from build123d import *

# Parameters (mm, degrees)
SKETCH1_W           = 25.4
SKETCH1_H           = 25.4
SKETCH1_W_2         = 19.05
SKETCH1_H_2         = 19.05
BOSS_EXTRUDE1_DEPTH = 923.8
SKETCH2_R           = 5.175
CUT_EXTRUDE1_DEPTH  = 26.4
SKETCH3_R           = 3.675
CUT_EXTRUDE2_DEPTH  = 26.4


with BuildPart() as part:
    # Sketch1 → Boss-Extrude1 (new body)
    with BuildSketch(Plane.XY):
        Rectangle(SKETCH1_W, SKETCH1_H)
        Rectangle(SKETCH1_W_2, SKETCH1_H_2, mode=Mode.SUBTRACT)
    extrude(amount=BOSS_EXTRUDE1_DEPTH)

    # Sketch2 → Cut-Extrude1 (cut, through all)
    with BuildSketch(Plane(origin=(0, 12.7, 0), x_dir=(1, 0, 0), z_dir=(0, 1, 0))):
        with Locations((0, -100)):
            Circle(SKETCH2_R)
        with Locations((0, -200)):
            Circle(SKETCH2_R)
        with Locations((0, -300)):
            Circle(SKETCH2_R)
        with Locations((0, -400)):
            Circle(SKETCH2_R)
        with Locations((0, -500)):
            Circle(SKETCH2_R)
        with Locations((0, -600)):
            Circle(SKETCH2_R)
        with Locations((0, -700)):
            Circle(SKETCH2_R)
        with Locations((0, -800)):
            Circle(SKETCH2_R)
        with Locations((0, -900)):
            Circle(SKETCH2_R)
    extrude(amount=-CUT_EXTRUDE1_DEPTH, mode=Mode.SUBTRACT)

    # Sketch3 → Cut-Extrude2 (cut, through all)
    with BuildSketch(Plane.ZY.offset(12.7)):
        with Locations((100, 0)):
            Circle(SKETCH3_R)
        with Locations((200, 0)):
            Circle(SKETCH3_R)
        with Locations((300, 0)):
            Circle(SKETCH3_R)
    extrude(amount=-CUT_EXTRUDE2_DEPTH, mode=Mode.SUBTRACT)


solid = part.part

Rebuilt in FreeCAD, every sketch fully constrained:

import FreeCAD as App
import Part
import Sketcher

V = App.Vector
Q = App.Units.Quantity


def add_polygon(sketch, points):
    """Adds a closed chain of lines whose ends are joined by coincident constraints."""
    first, n = sketch.GeometryCount, len(points)
    for a, b in zip(points, points[1:] + points[:1]):
        sketch.addGeometry(Part.LineSegment(App.Vector(*a, 0), App.Vector(*b, 0)), False)
    for i in range(n):
        sketch.addConstraint(Sketcher.Constraint("Coincident", first + i, 2, first + (i + 1) % n, 1))

doc = App.newDocument("Part")
body = doc.addObject("PartDesign::Body", "Body")

# Sketch on XY plane
sketch1 = body.newObject("Sketcher::SketchObject", "Sketch")
sketch1.AttachmentSupport = (doc.getObject("XY_Plane"), [""])
sketch1.MapMode = "FlatFace"
add_polygon(sketch1, [(-13, 13), (-13, -13), (13, -13), (13, 13)])  # lines 0-3
add_polygon(sketch1, [(10, -10), (-10, -10), (-10, 10), (10, 10)])  # lines 4-7
sketch1.addConstraint([
    Sketcher.Constraint("Vertical", 0),
    Sketcher.Constraint("Horizontal", 1),
    Sketcher.Constraint("Vertical", 2),
    Sketcher.Constraint("Horizontal", 3),
    Sketcher.Constraint("Horizontal", 4),
    Sketcher.Constraint("Vertical", 5),
    Sketcher.Constraint("Horizontal", 6),
    Sketcher.Constraint("Vertical", 7),
    Sketcher.Constraint("Symmetric", 0, 2, 2, 2, -1, 1),
    Sketcher.Constraint("Symmetric", 4, 2, 6, 2, -1, 1),
    Sketcher.Constraint("Equal", 3, 0),
    Sketcher.Constraint("Equal", 6, 5),
    Sketcher.Constraint("DistanceX", 1, 1, 1, 2, Q("25.4 mm")),
    Sketcher.Constraint("DistanceX", 4, 2, 4, 1, Q("19.05 mm")),
])
pad1 = body.newObject("PartDesign::Pad", "Pad")
pad1.Profile = sketch1
pad1.Length = 923.8

# Sketch on XZ plane
sketch2 = body.newObject("Sketcher::SketchObject", "Sketch001")
sketch2.AttachmentSupport = (doc.getObject("XZ_Plane"), [""])
sketch2.MapMode = "FlatFace"
sketch2.AttachmentOffset = App.Placement(V(0, 0, -12.7), App.Rotation())
sketch2.addGeometry([
    Part.Circle(V(0, 100, 0), V(0, 0, 1), 5),  # 0
    Part.Circle(V(0, 200, 0), V(0, 0, 1), 5),  # 1
    Part.Circle(V(0, 300, 0), V(0, 0, 1), 5),  # 2
    Part.Circle(V(0, 400, 0), V(0, 0, 1), 5),  # 3
    Part.Circle(V(0, 500, 0), V(0, 0, 1), 5),  # 4
    Part.Circle(V(0, 600, 0), V(0, 0, 1), 5),  # 5
    Part.Circle(V(0, 700, 0), V(0, 0, 1), 5),  # 6
    Part.Circle(V(0, 800, 0), V(0, 0, 1), 5),  # 7
    Part.Circle(V(0, 900, 0), V(0, 0, 1), 5),  # 8
], False)
sketch2.addConstraint([
    Sketcher.Constraint("Equal", 0, 1),
    Sketcher.Constraint("Equal", 1, 2),
    Sketcher.Constraint("Equal", 2, 3),
    Sketcher.Constraint("Equal", 3, 4),
    Sketcher.Constraint("Equal", 4, 5),
    Sketcher.Constraint("Equal", 5, 6),
    Sketcher.Constraint("Equal", 6, 7),
    Sketcher.Constraint("Equal", 7, 8),
    Sketcher.Constraint("PointOnObject", 0, 3, -2),
    Sketcher.Constraint("PointOnObject", 1, 3, -2),
    Sketcher.Constraint("PointOnObject", 2, 3, -2),
    Sketcher.Constraint("PointOnObject", 3, 3, -2),
    Sketcher.Constraint("PointOnObject", 4, 3, -2),
    Sketcher.Constraint("PointOnObject", 5, 3, -2),
    Sketcher.Constraint("PointOnObject", 6, 3, -2),
    Sketcher.Constraint("PointOnObject", 7, 3, -2),
    Sketcher.Constraint("PointOnObject", 8, 3, -2),
    Sketcher.Constraint("Diameter", 0, Q("10.35 mm")),
    Sketcher.Constraint("DistanceY", -1, 1, 0, 3, Q("100 mm")),
    Sketcher.Constraint("DistanceY", -1, 1, 1, 3, Q("200 mm")),
    Sketcher.Constraint("DistanceY", -1, 1, 2, 3, Q("300 mm")),
    Sketcher.Constraint("DistanceY", -1, 1, 3, 3, Q("400 mm")),
    Sketcher.Constraint("DistanceY", -1, 1, 4, 3, Q("500 mm")),
    Sketcher.Constraint("DistanceY", -1, 1, 5, 3, Q("600 mm")),
    Sketcher.Constraint("DistanceY", -1, 1, 6, 3, Q("700 mm")),
    Sketcher.Constraint("DistanceY", -1, 1, 7, 3, Q("800 mm")),
    Sketcher.Constraint("DistanceY", -1, 1, 8, 3, Q("900 mm")),
])
pocket1 = body.newObject("PartDesign::Pocket", "Pocket")
pocket1.Profile = sketch2
pocket1.Type = "ThroughAll"
pocket1.Reversed = True

# Sketch on YZ plane
sketch3 = body.newObject("Sketcher::SketchObject", "Sketch002")
sketch3.AttachmentSupport = (doc.getObject("YZ_Plane"), [""])
sketch3.MapMode = "FlatFace"
sketch3.AttachmentOffset = App.Placement(V(0, 0, -12.7), App.Rotation())
sketch3.addGeometry([
    Part.Circle(V(0, 100, 0), V(0, 0, 1), 3.7),
    Part.Circle(V(0, 200, 0), V(0, 0, 1), 3.7),
    Part.Circle(V(0, 300, 0), V(0, 0, 1), 3.7),
], False)
sketch3.addConstraint([
    Sketcher.Constraint("Equal", 0, 1),
    Sketcher.Constraint("Equal", 1, 2),
    Sketcher.Constraint("PointOnObject", 0, 3, -2),
    Sketcher.Constraint("PointOnObject", 1, 3, -2),
    Sketcher.Constraint("PointOnObject", 2, 3, -2),
    Sketcher.Constraint("Diameter", 0, Q("7.35 mm")),
    Sketcher.Constraint("DistanceY", -1, 1, 0, 3, Q("100 mm")),
    Sketcher.Constraint("DistanceY", -1, 1, 1, 3, Q("200 mm")),
    Sketcher.Constraint("DistanceY", -1, 1, 2, 3, Q("300 mm")),
])
pocket2 = body.newObject("PartDesign::Pocket", "Pocket001")
pocket2.Profile = sketch3
pocket2.Type = "ThroughAll"
pocket2.Reversed = True

doc.recompute()
